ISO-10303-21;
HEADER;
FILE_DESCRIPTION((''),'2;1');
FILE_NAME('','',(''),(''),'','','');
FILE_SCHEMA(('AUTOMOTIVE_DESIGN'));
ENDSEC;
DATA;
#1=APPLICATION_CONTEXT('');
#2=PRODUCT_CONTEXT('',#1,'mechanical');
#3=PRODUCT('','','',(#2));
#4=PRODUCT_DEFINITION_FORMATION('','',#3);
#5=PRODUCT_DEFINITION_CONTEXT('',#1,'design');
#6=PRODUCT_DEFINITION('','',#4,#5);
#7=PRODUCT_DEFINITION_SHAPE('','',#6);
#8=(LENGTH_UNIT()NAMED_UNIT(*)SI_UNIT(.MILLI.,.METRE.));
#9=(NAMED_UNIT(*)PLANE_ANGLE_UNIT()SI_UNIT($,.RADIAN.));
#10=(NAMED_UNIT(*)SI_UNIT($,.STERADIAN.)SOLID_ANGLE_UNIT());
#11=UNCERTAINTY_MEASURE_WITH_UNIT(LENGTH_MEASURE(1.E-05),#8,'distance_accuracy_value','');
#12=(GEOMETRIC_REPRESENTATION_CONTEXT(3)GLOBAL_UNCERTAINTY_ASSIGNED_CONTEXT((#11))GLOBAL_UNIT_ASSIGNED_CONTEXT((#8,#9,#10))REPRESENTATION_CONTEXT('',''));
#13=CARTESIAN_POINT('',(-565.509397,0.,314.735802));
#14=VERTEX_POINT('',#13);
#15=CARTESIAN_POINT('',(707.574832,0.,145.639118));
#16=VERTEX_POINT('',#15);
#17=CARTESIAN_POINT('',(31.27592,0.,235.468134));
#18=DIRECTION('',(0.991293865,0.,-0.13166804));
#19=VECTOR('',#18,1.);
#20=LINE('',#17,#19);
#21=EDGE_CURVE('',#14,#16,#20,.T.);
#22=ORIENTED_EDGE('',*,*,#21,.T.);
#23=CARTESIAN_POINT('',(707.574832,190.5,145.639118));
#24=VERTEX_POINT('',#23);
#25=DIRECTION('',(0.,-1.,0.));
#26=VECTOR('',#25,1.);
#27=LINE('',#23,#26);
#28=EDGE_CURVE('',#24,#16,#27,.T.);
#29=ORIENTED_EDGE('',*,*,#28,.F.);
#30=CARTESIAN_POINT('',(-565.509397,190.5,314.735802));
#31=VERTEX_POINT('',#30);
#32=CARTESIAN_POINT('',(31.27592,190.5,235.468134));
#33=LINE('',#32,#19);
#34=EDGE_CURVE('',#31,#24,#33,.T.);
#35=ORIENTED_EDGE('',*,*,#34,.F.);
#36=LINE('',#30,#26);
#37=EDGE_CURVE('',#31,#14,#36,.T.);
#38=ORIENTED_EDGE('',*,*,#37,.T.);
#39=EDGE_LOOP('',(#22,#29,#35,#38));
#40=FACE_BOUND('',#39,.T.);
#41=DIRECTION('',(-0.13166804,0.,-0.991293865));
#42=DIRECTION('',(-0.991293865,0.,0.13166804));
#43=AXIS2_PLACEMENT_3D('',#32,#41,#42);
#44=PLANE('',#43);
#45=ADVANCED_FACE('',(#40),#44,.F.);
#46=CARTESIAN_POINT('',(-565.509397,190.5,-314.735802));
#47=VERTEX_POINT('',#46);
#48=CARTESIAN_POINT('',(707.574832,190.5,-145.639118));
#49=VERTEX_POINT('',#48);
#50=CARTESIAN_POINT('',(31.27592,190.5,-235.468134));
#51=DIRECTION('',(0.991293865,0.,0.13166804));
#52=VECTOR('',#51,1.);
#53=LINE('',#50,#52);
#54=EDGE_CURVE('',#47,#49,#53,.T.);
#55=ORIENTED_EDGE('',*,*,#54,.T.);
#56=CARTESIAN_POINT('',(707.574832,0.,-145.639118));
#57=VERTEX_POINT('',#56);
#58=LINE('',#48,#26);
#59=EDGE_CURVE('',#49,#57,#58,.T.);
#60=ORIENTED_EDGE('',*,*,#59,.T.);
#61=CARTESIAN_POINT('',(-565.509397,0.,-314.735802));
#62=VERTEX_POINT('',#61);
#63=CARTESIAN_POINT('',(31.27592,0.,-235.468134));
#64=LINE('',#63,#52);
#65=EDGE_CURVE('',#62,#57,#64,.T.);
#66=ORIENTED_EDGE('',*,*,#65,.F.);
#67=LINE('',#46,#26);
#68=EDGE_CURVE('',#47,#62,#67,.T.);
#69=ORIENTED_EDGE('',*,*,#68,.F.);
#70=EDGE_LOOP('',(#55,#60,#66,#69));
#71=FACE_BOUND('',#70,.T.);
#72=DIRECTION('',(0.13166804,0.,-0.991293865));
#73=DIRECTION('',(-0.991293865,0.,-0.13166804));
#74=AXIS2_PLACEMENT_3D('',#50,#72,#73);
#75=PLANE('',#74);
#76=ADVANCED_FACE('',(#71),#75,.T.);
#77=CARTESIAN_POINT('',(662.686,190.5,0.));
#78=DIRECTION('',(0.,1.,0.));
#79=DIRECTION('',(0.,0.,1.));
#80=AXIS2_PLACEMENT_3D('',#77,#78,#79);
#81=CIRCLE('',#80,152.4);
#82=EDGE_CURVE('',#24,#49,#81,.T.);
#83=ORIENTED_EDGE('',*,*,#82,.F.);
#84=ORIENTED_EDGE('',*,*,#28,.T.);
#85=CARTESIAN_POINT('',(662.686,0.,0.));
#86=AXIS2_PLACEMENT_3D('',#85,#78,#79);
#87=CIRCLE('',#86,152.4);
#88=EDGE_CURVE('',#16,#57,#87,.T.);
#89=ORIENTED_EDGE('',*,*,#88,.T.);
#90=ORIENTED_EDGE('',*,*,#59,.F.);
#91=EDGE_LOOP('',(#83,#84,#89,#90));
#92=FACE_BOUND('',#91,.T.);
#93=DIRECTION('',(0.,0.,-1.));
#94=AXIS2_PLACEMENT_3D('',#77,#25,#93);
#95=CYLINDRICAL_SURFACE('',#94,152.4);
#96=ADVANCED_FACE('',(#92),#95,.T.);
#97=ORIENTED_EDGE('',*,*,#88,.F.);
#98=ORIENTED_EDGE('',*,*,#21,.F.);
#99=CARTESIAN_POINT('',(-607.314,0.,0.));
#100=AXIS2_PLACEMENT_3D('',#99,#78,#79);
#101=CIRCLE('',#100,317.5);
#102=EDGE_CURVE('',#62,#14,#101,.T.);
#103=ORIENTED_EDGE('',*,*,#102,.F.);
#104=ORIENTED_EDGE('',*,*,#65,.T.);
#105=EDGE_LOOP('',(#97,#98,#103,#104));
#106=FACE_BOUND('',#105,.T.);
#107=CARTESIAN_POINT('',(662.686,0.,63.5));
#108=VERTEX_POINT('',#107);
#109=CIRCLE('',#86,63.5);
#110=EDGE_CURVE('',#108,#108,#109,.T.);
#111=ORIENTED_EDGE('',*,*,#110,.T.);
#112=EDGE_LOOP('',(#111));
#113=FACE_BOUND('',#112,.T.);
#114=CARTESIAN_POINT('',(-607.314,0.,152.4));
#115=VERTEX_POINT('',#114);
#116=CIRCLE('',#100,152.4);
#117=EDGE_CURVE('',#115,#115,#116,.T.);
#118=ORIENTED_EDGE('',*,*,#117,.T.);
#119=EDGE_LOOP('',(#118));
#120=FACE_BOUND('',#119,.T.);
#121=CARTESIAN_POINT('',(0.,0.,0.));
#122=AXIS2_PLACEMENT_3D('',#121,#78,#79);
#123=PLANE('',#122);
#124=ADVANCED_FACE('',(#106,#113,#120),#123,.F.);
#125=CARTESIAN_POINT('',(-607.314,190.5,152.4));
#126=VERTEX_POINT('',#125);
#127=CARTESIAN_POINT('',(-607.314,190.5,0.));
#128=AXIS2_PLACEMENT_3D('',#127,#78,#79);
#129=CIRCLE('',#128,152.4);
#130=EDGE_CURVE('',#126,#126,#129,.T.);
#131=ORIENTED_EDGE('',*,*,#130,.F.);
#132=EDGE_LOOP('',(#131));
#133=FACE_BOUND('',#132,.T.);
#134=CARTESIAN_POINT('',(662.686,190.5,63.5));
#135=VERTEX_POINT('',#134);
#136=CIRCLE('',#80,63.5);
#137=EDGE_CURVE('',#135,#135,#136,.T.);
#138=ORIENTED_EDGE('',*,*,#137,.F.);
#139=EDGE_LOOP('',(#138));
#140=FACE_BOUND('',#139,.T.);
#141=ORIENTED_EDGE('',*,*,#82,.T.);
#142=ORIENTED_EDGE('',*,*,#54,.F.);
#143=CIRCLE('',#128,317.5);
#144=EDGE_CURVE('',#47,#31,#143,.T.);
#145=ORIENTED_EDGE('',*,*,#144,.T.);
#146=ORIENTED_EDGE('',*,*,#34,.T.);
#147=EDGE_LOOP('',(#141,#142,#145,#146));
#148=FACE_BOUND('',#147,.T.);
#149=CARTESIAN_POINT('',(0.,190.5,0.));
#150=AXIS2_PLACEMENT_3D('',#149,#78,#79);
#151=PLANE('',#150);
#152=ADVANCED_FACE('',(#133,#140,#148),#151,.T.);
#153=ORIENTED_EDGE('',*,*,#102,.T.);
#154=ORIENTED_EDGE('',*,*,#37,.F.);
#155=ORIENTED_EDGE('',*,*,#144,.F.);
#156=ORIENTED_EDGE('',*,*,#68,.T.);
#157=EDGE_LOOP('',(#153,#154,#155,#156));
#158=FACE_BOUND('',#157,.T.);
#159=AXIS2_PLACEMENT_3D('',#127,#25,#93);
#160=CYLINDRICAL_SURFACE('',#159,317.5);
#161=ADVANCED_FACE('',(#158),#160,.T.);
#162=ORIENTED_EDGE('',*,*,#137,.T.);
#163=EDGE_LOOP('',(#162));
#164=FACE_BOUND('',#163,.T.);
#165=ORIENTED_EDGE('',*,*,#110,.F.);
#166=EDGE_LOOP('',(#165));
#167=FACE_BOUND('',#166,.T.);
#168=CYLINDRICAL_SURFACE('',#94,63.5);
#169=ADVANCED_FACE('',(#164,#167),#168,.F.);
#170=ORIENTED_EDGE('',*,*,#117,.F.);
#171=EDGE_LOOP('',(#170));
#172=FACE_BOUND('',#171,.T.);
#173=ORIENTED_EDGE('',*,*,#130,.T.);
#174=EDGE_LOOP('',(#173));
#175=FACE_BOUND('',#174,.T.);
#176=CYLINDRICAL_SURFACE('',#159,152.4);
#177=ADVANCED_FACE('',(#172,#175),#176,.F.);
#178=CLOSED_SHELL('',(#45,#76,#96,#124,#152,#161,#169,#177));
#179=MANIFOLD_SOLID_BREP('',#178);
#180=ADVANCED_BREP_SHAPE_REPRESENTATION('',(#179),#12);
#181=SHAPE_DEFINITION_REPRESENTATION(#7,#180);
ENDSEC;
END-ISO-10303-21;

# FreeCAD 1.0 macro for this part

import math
import FreeCAD as App
import Part
import Sketcher
Q = App.Units.Quantity

doc = App.newDocument("Part")
body = doc.addObject("PartDesign::Body", "Body")

# Sketch on XZ plane
sketch1 = body.newObject("Sketcher::SketchObject", "Sketch")
sketch1.AttachmentSupport = (doc.getObject("XZ_Plane"), [""])
sketch1.MapMode = "FlatFace"
sketch1.addGeometry([
    Part.LineSegment(App.Vector(657.371733, -152.307316, 0), App.Vector(-565.509397, -314.735802, 0)),  # 0
    Part.ArcOfCircle(Part.Circle(App.Vector(-607.314, 0, 0), App.Vector(0, 0, 1), 317.5), math.radians(82.434007), math.radians(277.565993)),  # 1
    Part.LineSegment(App.Vector(-565.509397, 314.735802, 0), App.Vector(657.371733, 152.307316, 0)),  # 2
    Part.LineSegment(App.Vector(657.371733, 152.307316, 0), App.Vector(707.574832, 145.639118, 0)),  # 3
    Part.ArcOfCircle(Part.Circle(App.Vector(662.686, 0, 0), App.Vector(0, 0, 1), 152.4), math.radians(-72.869676), math.radians(72.869676)),  # 4
    Part.LineSegment(App.Vector(707.574832, -145.639118, 0), App.Vector(657.371733, -152.307316, 0)),  # 5
    Part.Circle(App.Vector(-607.314, 0, 0), App.Vector(0, 0, 1), 152.4),  # 6
    Part.Circle(App.Vector(662.686, 0, 0), App.Vector(0, 0, 1), 63.5),  # 7
], False)
sketch1.addConstraint([
    Sketcher.Constraint("Tangent", 0, 2, 1, 2),
    Sketcher.Constraint("Tangent", 1, 1, 2, 1),
    Sketcher.Constraint("Coincident", 2, 2, 3, 1),
    Sketcher.Constraint("Coincident", 3, 2, 4, 2),
    Sketcher.Constraint("Coincident", 4, 1, 5, 1),
    Sketcher.Constraint("Coincident", 5, 2, 0, 1),
    Sketcher.Constraint("Coincident", 6, 3, 1, 3),
    Sketcher.Constraint("Coincident", 7, 3, 4, 3),
    Sketcher.Constraint("Equal", 4, 6),
    Sketcher.Constraint("Symmetric", 3, 2, 4, 1, -1),
    Sketcher.Constraint("Symmetric", 2, 2, 5, 2, -1),
    Sketcher.Constraint("PointOnObject", 1, 3, -1),
    Sketcher.Constraint("Parallel", 2, 3),
    Sketcher.Constraint("Diameter", 6, Q("12 in")),
    Sketcher.Constraint("Diameter", 7, Q("5 in")),
    Sketcher.Constraint("Radius", 1, Q("12.5 in")),
    Sketcher.Constraint("DistanceX", 1, 3, 4, 3, Q("50 in")),
    Sketcher.Constraint("DistanceX", 1, 3, -1, 1, Q("23.91 in")),
    Sketcher.Constraint("DistanceX", 2, 2, 3, 2, Q("1.9764999 in")),
    Sketcher.Constraint("DistanceX", -1, 1, 3, 2, 707.574832),
])
pad1 = body.newObject("PartDesign::Pad", "Pad")
pad1.Profile = sketch1
pad1.Length = Q("7.5 in")
pad1.Reversed = True

doc.recompute()
